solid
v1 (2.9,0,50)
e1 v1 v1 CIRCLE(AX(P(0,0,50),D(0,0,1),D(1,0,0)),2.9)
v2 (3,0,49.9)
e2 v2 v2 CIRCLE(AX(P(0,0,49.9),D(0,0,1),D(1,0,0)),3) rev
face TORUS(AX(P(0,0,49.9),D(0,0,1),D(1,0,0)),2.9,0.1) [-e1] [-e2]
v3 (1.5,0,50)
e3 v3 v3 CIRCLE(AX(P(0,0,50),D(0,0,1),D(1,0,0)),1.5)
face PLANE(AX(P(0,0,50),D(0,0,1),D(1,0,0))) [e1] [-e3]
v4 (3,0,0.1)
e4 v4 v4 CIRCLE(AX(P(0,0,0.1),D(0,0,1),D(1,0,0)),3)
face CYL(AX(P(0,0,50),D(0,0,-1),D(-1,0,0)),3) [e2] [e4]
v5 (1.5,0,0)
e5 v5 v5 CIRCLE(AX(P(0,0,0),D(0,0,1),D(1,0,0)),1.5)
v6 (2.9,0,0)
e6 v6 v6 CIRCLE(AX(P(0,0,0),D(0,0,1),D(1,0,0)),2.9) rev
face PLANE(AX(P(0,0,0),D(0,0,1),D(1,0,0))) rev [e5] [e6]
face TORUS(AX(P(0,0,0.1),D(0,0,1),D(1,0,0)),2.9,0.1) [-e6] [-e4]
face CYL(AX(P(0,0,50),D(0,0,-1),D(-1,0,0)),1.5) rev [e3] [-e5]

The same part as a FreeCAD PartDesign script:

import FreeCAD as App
import Part
import Sketcher
from FreeCAD import Vector
Q = App.Units.Quantity


def edges_at(feature, points):
    """Names of the edges that pass closest to the given points."""
    edges = feature.Shape.Edges
    near = lambda p: min(range(len(edges)), key=lambda i: edges[i].distToShape(Part.Vertex(*p))[0])
    return sorted({f"Edge{near(p) + 1}" for p in points})

doc = App.newDocument("Part")
body = doc.addObject("PartDesign::Body", "Body")

# Sketch on XY plane
sketch1 = body.newObject("Sketcher::SketchObject", "Sketch")
sketch1.AttachmentSupport = (doc.getObject("XY_Plane"), [""])
sketch1.MapMode = "FlatFace"
sketch1.addGeometry([
    Part.Circle(Vector(0, 0, 0), Vector(0, 0, 1), 3),
    Part.Circle(Vector(0, 0, 0), Vector(0, 0, 1), 1.5),
], False)
sketch1.addConstraint([
    Sketcher.Constraint("Coincident", 0, 3, -1, 1),
    Sketcher.Constraint("Coincident", 1, 3, -1, 1),
    Sketcher.Constraint("Diameter", 0, Q("6 mm")),
    Sketcher.Constraint("Diameter", 1, Q("3 mm")),
])
pad1 = body.newObject("PartDesign::Pad", "Pad")
pad1.Profile = sketch1
pad1.Length = 50
doc.recompute()

fillet = body.newObject("PartDesign::Fillet", "Fillet")
fillet.Base = (pad1, edges_at(pad1, [(-3, 0, 0), (-3, 0, 50)]))
fillet.Radius = 0.1

doc.recompute()
